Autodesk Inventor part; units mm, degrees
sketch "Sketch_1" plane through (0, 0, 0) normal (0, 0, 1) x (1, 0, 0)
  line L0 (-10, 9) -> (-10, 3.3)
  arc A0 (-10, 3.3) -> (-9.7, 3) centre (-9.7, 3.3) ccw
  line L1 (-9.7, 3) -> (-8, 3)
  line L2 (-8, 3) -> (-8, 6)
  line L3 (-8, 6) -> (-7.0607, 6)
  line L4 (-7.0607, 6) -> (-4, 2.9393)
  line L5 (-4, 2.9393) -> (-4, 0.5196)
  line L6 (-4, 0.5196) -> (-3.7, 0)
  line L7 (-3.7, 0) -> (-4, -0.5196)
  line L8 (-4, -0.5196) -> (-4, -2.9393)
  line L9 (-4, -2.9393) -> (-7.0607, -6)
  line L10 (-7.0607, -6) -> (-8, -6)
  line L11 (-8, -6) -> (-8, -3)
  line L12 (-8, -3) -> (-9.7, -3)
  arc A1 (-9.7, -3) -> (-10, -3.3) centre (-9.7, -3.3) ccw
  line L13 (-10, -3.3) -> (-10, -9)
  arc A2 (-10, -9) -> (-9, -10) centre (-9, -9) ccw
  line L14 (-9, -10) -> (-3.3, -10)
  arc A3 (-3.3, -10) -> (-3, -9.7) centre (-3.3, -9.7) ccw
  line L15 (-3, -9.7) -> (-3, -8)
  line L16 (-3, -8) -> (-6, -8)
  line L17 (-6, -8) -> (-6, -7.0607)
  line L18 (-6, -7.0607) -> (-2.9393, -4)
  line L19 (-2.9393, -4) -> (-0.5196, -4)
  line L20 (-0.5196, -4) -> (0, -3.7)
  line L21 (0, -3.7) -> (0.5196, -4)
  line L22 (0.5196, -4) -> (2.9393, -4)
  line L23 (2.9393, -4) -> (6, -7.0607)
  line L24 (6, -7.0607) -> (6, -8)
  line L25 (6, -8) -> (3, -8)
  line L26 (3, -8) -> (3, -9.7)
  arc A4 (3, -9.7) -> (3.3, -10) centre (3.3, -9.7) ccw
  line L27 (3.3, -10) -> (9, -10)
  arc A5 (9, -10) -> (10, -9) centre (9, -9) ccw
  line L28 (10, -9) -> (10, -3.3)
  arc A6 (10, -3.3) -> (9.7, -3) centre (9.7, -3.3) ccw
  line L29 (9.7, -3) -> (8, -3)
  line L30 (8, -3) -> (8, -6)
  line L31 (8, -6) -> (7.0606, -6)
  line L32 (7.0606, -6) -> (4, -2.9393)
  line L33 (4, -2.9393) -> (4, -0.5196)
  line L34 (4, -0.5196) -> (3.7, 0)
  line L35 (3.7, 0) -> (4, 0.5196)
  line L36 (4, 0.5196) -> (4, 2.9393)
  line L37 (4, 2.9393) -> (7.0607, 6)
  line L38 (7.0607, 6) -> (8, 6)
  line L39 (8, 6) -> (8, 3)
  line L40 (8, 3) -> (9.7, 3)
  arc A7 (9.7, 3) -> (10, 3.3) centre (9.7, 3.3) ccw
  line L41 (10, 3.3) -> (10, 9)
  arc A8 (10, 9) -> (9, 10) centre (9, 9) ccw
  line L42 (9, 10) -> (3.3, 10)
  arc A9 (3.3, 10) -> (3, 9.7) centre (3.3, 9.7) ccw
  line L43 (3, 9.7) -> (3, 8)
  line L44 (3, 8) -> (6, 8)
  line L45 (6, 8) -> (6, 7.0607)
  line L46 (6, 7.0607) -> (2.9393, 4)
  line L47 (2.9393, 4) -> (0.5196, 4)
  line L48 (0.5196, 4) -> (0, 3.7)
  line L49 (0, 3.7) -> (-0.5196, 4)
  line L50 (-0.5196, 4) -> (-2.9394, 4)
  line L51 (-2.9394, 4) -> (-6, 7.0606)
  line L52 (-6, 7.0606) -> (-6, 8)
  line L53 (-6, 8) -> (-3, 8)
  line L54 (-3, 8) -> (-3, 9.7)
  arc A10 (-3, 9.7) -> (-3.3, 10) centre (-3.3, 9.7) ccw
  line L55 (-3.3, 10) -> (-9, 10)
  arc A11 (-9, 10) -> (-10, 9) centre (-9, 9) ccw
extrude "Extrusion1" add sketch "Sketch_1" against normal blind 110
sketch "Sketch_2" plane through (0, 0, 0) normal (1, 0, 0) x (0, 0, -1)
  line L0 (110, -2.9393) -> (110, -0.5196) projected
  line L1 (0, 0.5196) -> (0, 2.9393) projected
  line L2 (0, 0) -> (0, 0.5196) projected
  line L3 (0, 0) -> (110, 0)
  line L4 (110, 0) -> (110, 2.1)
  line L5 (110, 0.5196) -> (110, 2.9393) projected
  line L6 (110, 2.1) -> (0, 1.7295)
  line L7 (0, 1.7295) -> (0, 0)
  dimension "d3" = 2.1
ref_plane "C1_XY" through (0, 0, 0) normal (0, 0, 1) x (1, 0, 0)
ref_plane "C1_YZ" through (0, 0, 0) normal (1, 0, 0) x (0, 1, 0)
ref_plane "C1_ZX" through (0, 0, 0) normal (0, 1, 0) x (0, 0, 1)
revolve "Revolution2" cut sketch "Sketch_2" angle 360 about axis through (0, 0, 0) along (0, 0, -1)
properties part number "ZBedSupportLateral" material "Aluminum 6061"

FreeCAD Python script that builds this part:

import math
import FreeCAD as App
import Part
import Sketcher
from FreeCAD import Vector
Q = App.Units.Quantity

doc = App.newDocument("Part")
params = doc.addObject("Spreadsheet::Sheet", "Params")
for row, (alias, value) in enumerate([
    ("sketch1_radius", "1 mm"),
    ("sketch1_radius2", "0.3 mm"),
    ("sketch1_width", "3 mm"),
    ("sketch1_width2", "1.7 mm"),
    ("sketch1_width3", "5.7 mm"),
    ("pad1_length", "110 mm"),
    ("sketch2_width", "2.1 mm"),
    ("sketch2_height", "110 mm"),
    ("groove_angle", "360 deg"),
], start=1):
    params.set(f"A{row}", alias)
    params.set(f"B{row}", "=" + value)
    params.setAlias(f"B{row}", alias)

body = doc.addObject("PartDesign::Body", "Body")

sketch1 = body.newObject("Sketcher::SketchObject", "Sketch")
sketch1.AttachmentSupport = (doc.getObject("XY_Plane"), [""])
sketch1.MapMode = "FlatFace"
sketch1.addGeometry([
    Part.ArcOfCircle(Part.Circle(Vector(-9, 9, 0), Vector(0, 0, 1), 1), math.radians(90), math.radians(180)),
    Part.LineSegment(Vector(-10, 9, 0), Vector(-10, 3.3, 0)),
    Part.ArcOfCircle(Part.Circle(Vector(-9.7, 3.3, 0), Vector(0, 0, 1), 0.3), math.radians(180), math.radians(270)),
    Part.LineSegment(Vector(-9.7, 3, 0), Vector(-8, 3, 0)),
    Part.LineSegment(Vector(-8, 3, 0), Vector(-8, 6, 0)),
    Part.LineSegment(Vector(-8, 6, 0), Vector(-7.06, 6, 0)),
    Part.LineSegment(Vector(-7.06, 6, 0), Vector(-4, 2.94, 0)),
    Part.LineSegment(Vector(-4, 2.94, 0), Vector(-4, 0.52, 0)),
    Part.LineSegment(Vector(-4, 0.52, 0), Vector(-3.7, 0, 0)),
    Part.LineSegment(Vector(-3.7, 0, 0), Vector(-4, -0.52, 0)),
    Part.LineSegment(Vector(-4, -0.52, 0), Vector(-4, -2.94, 0)),
    Part.LineSegment(Vector(-4, -2.94, 0), Vector(-7.06, -6, 0)),
    Part.LineSegment(Vector(-7.06, -6, 0), Vector(-8, -6, 0)),
    Part.LineSegment(Vector(-8, -6, 0), Vector(-8, -3, 0)),
    Part.LineSegment(Vector(-8, -3, 0), Vector(-9.7, -3, 0)),
    Part.ArcOfCircle(Part.Circle(Vector(-9.7, -3.3, 0), Vector(0, 0, 1), 0.3), math.radians(90), math.radians(180)),
    Part.LineSegment(Vector(-10, -3.3, 0), Vector(-10, -9, 0)),
    Part.ArcOfCircle(Part.Circle(Vector(-9, -9, 0), Vector(0, 0, 1), 1), math.radians(180), math.radians(270)),
    Part.LineSegment(Vector(-9, -10, 0), Vector(-3.3, -10, 0)),
    Part.ArcOfCircle(Part.Circle(Vector(-3.3, -9.7, 0), Vector(0, 0, 1), 0.3), math.radians(-90), math.radians(0)),
    Part.LineSegment(Vector(-3, -9.7, 0), Vector(-3, -8, 0)),
    Part.LineSegment(Vector(-3, -8, 0), Vector(-6, -8, 0)),
    Part.LineSegment(Vector(-6, -8, 0), Vector(-6, -7.06, 0)),
    Part.LineSegment(Vector(-6, -7.06, 0), Vector(-2.94, -4, 0)),
    Part.LineSegment(Vector(-2.94, -4, 0), Vector(-0.52, -4, 0)),
    Part.LineSegment(Vector(-0.52, -4, 0), Vector(0, -3.7, 0)),
    Part.LineSegment(Vector(0, -3.7, 0), Vector(0.52, -4, 0)),
    Part.LineSegment(Vector(0.52, -4, 0), Vector(2.94, -4, 0)),
    Part.LineSegment(Vector(2.94, -4, 0), Vector(6, -7.06, 0)),
    Part.LineSegment(Vector(6, -7.06, 0), Vector(6, -8, 0)),
    Part.LineSegment(Vector(6, -8, 0), Vector(3, -8, 0)),
    Part.LineSegment(Vector(3, -8, 0), Vector(3, -9.7, 0)),
    Part.ArcOfCircle(Part.Circle(Vector(3.3, -9.7, 0), Vector(0, 0, 1), 0.3), math.radians(180), math.radians(270)),
    Part.LineSegment(Vector(3.3, -10, 0), Vector(9, -10, 0)),
    Part.ArcOfCircle(Part.Circle(Vector(9, -9, 0), Vector(0, 0, 1), 1), math.radians(-90), math.radians(0)),
    Part.LineSegment(Vector(10, -9, 0), Vector(10, -3.3, 0)),
    Part.ArcOfCircle(Part.Circle(Vector(9.7, -3.3, 0), Vector(0, 0, 1), 0.3), math.radians(0), math.radians(90)),
    Part.LineSegment(Vector(9.7, -3, 0), Vector(8, -3, 0)),
    Part.LineSegment(Vector(8, -3, 0), Vector(8, -6, 0)),
    Part.LineSegment(Vector(8, -6, 0), Vector(7.06, -6, 0)),
    Part.LineSegment(Vector(7.06, -6, 0), Vector(4, -2.94, 0)),
    Part.LineSegment(Vector(4, -2.94, 0), Vector(4, -0.52, 0)),
    Part.LineSegment(Vector(4, -0.52, 0), Vector(3.7, 0, 0)),
    Part.LineSegment(Vector(3.7, 0, 0), Vector(4, 0.52, 0)),
    Part.LineSegment(Vector(4, 0.52, 0), Vector(4, 2.94, 0)),
    Part.LineSegment(Vector(4, 2.94, 0), Vector(7.06, 6, 0)),
    Part.LineSegment(Vector(7.06, 6, 0), Vector(8, 6, 0)),
    Part.LineSegment(Vector(8, 6, 0), Vector(8, 3, 0)),
    Part.LineSegment(Vector(8, 3, 0), Vector(9.7, 3, 0)),
    Part.ArcOfCircle(Part.Circle(Vector(9.7, 3.3, 0), Vector(0, 0, 1), 0.3), math.radians(-90), math.radians(0)),
    Part.LineSegment(Vector(10, 3.3, 0), Vector(10, 9, 0)),
    Part.ArcOfCircle(Part.Circle(Vector(9, 9, 0), Vector(0, 0, 1), 1), math.radians(0), math.radians(90)),
    Part.LineSegment(Vector(9, 10, 0), Vector(3.3, 10, 0)),
    Part.ArcOfCircle(Part.Circle(Vector(3.3, 9.7, 0), Vector(0, 0, 1), 0.3), math.radians(90), math.radians(180)),
    Part.LineSegment(Vector(3, 9.7, 0), Vector(3, 8, 0)),
    Part.LineSegment(Vector(3, 8, 0), Vector(6, 8, 0)),
    Part.LineSegment(Vector(6, 8, 0), Vector(6, 7.06, 0)),
    Part.LineSegment(Vector(6, 7.06, 0), Vector(2.94, 4, 0)),
    Part.LineSegment(Vector(2.94, 4, 0), Vector(0.52, 4, 0)),
    Part.LineSegment(Vector(0.52, 4, 0), Vector(0, 3.7, 0)),
    Part.LineSegment(Vector(0, 3.7, 0), Vector(-0.52, 4, 0)),
    Part.LineSegment(Vector(-0.52, 4, 0), Vector(-2.94, 4, 0)),
    Part.LineSegment(Vector(-2.94, 4, 0), Vector(-6, 7.06, 0)),
    Part.LineSegment(Vector(-6, 7.06, 0), Vector(-6, 8, 0)),
    Part.LineSegment(Vector(-6, 8, 0), Vector(-3, 8, 0)),
    Part.LineSegment(Vector(-3, 8, 0), Vector(-3, 9.7, 0)),
    Part.ArcOfCircle(Part.Circle(Vector(-3.3, 9.7, 0), Vector(0, 0, 1), 0.3), math.radians(0), math.radians(90)),
    Part.LineSegment(Vector(-3.3, 10, 0), Vector(-9, 10, 0)),
], False)
sketch1.addConstraint([
    Sketcher.Constraint("Tangent", 0, 2, 1, 1),
    Sketcher.Constraint("Tangent", 1, 2, 2, 1),
    Sketcher.Constraint("Tangent", 2, 2, 3, 1),
    Sketcher.Constraint("Coincident", 3, 2, 4, 1),
    Sketcher.Constraint("Coincident", 4, 2, 5, 1),
    Sketcher.Constraint("Coincident", 5, 2, 6, 1),
    Sketcher.Constraint("Coincident", 6, 2, 7, 1),
    Sketcher.Constraint("Coincident", 7, 2, 8, 1),
    Sketcher.Constraint("Coincident", 8, 2, 9, 1),
    Sketcher.Constraint("Coincident", 9, 2, 10, 1),
    Sketcher.Constraint("Coincident", 10, 2, 11, 1),
    Sketcher.Constraint("Coincident", 11, 2, 12, 1),
    Sketcher.Constraint("Coincident", 12, 2, 13, 1),
    Sketcher.Constraint("Coincident", 13, 2, 14, 1),
    Sketcher.Constraint("Tangent", 14, 2, 15, 1),
    Sketcher.Constraint("Tangent", 15, 2, 16, 1),
    Sketcher.Constraint("Tangent", 16, 2, 17, 1),
    Sketcher.Constraint("Tangent", 17, 2, 18, 1),
    Sketcher.Constraint("Tangent", 18, 2, 19, 1),
    Sketcher.Constraint("Tangent", 19, 2, 20, 1),
    Sketcher.Constraint("Coincident", 20, 2, 21, 1),
    Sketcher.Constraint("Coincident", 21, 2, 22, 1),
    Sketcher.Constraint("Coincident", 22, 2, 23, 1),
    Sketcher.Constraint("Coincident", 23, 2, 24, 1),
    Sketcher.Constraint("Coincident", 24, 2, 25, 1),
    Sketcher.Constraint("Coincident", 25, 2, 26, 1),
    Sketcher.Constraint("Coincident", 26, 2, 27, 1),
    Sketcher.Constraint("Coincident", 27, 2, 28, 1),
    Sketcher.Constraint("Coincident", 28, 2, 29, 1),
    Sketcher.Constraint("Coincident", 29, 2, 30, 1),
    Sketcher.Constraint("Coincident", 30, 2, 31, 1),
    Sketcher.Constraint("Tangent", 31, 2, 32, 1),
    Sketcher.Constraint("Tangent", 32, 2, 33, 1),
    Sketcher.Constraint("Tangent", 33, 2, 34, 1),
    Sketcher.Constraint("Tangent", 34, 2, 35, 1),
    Sketcher.Constraint("Tangent", 35, 2, 36, 1),
    Sketcher.Constraint("Tangent", 36, 2, 37, 1),
    Sketcher.Constraint("Coincident", 37, 2, 38, 1),
    Sketcher.Constraint("Coincident", 38, 2, 39, 1),
    Sketcher.Constraint("Coincident", 39, 2, 40, 1),
    Sketcher.Constraint("Coincident", 40, 2, 41, 1),
    Sketcher.Constraint("Coincident", 41, 2, 42, 1),
    Sketcher.Constraint("Coincident", 42, 2, 43, 1),
    Sketcher.Constraint("Coincident", 43, 2, 44, 1),
    Sketcher.Constraint("Coincident", 44, 2, 45, 1),
    Sketcher.Constraint("Coincident", 45, 2, 46, 1),
    Sketcher.Constraint("Coincident", 46, 2, 47, 1),
    Sketcher.Constraint("Coincident", 47, 2, 48, 1),
    Sketcher.Constraint("Tangent", 48, 2, 49, 1),
    Sketcher.Constraint("Tangent", 49, 2, 50, 1),
    Sketcher.Constraint("Tangent", 50, 2, 51, 1),
    Sketcher.Constraint("Tangent", 51, 2, 52, 1),
    Sketcher.Constraint("Tangent", 52, 2, 53, 1),
    Sketcher.Constraint("Tangent", 53, 2, 54, 1),
    Sketcher.Constraint("Coincident", 54, 2, 55, 1),
    Sketcher.Constraint("Coincident", 55, 2, 56, 1),
    Sketcher.Constraint("Coincident", 56, 2, 57, 1),
    Sketcher.Constraint("Coincident", 57, 2, 58, 1),
    Sketcher.Constraint("Coincident", 58, 2, 59, 1),
    Sketcher.Constraint("Coincident", 59, 2, 60, 1),
    Sketcher.Constraint("Coincident", 60, 2, 61, 1),
    Sketcher.Constraint("Coincident", 61, 2, 62, 1),
    Sketcher.Constraint("Coincident", 62, 2, 63, 1),
    Sketcher.Constraint("Coincident", 63, 2, 64, 1),
    Sketcher.Constraint("Coincident", 64, 2, 65, 1),
    Sketcher.Constraint("Tangent", 65, 2, 66, 1),
    Sketcher.Constraint("Tangent", 66, 2, 67, 1),
    Sketcher.Constraint("Tangent", 67, 2, 0, 1),
    Sketcher.Constraint("Vertical", 1),
    Sketcher.Constraint("Horizontal", 3),
    Sketcher.Constraint("Vertical", 4),
    Sketcher.Constraint("Horizontal", 5),
    Sketcher.Constraint("Vertical", 7),
    Sketcher.Constraint("Vertical", 10),
    Sketcher.Constraint("Horizontal", 12),
    Sketcher.Constraint("Vertical", 13),
    Sketcher.Constraint("Horizontal", 14),
    Sketcher.Constraint("Vertical", 16),
    Sketcher.Constraint("Horizontal", 18),
    Sketcher.Constraint("Vertical", 20),
    Sketcher.Constraint("Horizontal", 21),
    Sketcher.Constraint("Vertical", 22),
    Sketcher.Constraint("Horizontal", 24),
    Sketcher.Constraint("Horizontal", 27),
    Sketcher.Constraint("Vertical", 29),
    Sketcher.Constraint("Horizontal", 30),
    Sketcher.Constraint("Vertical", 31),
    Sketcher.Constraint("Horizontal", 33),
    Sketcher.Constraint("Vertical", 35),
    Sketcher.Constraint("Horizontal", 37),
    Sketcher.Constraint("Vertical", 38),
    Sketcher.Constraint("Horizontal", 39),
    Sketcher.Constraint("Vertical", 41),
    Sketcher.Constraint("Vertical", 44),
    Sketcher.Constraint("Horizontal", 46),
    Sketcher.Constraint("Vertical", 47),
    Sketcher.Constraint("Horizontal", 48),
    Sketcher.Constraint("Vertical", 50),
    Sketcher.Constraint("Horizontal", 52),
    Sketcher.Constraint("Vertical", 54),
    Sketcher.Constraint("Horizontal", 55),
    Sketcher.Constraint("Vertical", 56),
    Sketcher.Constraint("Horizontal", 58),
    Sketcher.Constraint("Horizontal", 61),
    Sketcher.Constraint("Vertical", 63),
    Sketcher.Constraint("Horizontal", 64),
    Sketcher.Constraint("Vertical", 65),
    Sketcher.Constraint("Horizontal", 67),
    Sketcher.Constraint("Equal", 2, 15),
    Sketcher.Constraint("Equal", 0, 17),
    Sketcher.Constraint("Equal", 15, 19),
    Sketcher.Constraint("Equal", 19, 32),
    Sketcher.Constraint("Equal", 17, 34),
    Sketcher.Constraint("Equal", 32, 36),
    Sketcher.Constraint("Equal", 36, 49),
    Sketcher.Constraint("Equal", 34, 51),
    Sketcher.Constraint("Equal", 49, 53),
    Sketcher.Constraint("Equal", 53, 66),
    Sketcher.Constraint("Symmetric", 0, 3, 34, 3, -1, 1),
    Sketcher.Constraint("Symmetric", 15, 3, 49, 3, -1, 1),
    Sketcher.Constraint("Symmetric", 19, 3, 53, 3, -1, 1),
    Sketcher.Constraint("Symmetric", 3, 2, 37, 2, -1, 1),
    Sketcher.Constraint("Symmetric", 5, 2, 39, 2, -1, 1),
    Sketcher.Constraint("Symmetric", 6, 2, 40, 2, -1, 1),
    Sketcher.Constraint("Symmetric", 8, 2, 42, 2, -1, 1),
    Sketcher.Constraint("Symmetric", 9, 2, 43, 2, -1, 1),
    Sketcher.Constraint("Symmetric", 11, 2, 45, 2, -1, 1),
    Sketcher.Constraint("Symmetric", 21, 2, 55, 2, -1, 1),
    Sketcher.Constraint("Symmetric", 23, 2, 57, 2, -1, 1),
    Sketcher.Constraint("Symmetric", 25, 2, 59, 2, -1, 1),
    Sketcher.Constraint("Symmetric", 26, 2, 60, 2, -1, 1),
    Sketcher.Constraint("Symmetric", 28, 2, 62, 2, -1, 1),
    Sketcher.Constraint("Symmetric", 30, 2, 64, 2, -1, 1),
    Sketcher.Constraint("Symmetric", 19, 3, 32, 3, -2),
    Sketcher.Constraint("Symmetric", 15, 3, 36, 3, -2),
    Sketcher.Constraint("Symmetric", 24, 2, 26, 2, -2),
    Sketcher.Constraint("Symmetric", 22, 2, 28, 2, -2),
    Sketcher.Constraint("Symmetric", 12, 2, 38, 2, -2),
    Sketcher.Constraint("Symmetric", 10, 2, 40, 2, -2),
    Sketcher.Constraint("PointOnObject", 8, 2, -1),
    Sketcher.Constraint("PointOnObject", 25, 2, -2),
    Sketcher.Constraint("Perpendicular", 6, 11),
    Sketcher.Constraint("Parallel", 11, 23),
    Sketcher.Constraint("Perpendicular", 8, 25),
    Sketcher.Constraint("Perpendicular", 9, 26),
    Sketcher.Constraint("Perpendicular", 23, 28),
    Sketcher.Constraint("Perpendicular", 25, 42),
    Sketcher.Constraint("Perpendicular", 40, 45),
    Sketcher.Constraint("Parallel", 45, 57),
    Sketcher.Constraint("Perpendicular", 42, 59),
    Sketcher.Constraint("Perpendicular", 57, 62),
    Sketcher.Constraint("Horizontal", 21, 2, 29, 2),
    Sketcher.Constraint("Vertical", 5, 2, 11, 2),
    Sketcher.Constraint("Vertical", 38, 2, 46, 2),
    Sketcher.Constraint("Equal", 67, 1),
    Sketcher.Constraint("Equal", 64, 4),
    Sketcher.Constraint("Equal", 61, 7),
    Sketcher.Constraint("Equal", 48, 20),
    Sketcher.Constraint("Equal", 46, 22),
    Sketcher.Constraint("Equal", 11, 23),
    Sketcher.Constraint("Equal", 9, 25),
    Sketcher.Constraint("Radius", 0, Q("1 mm")),
    Sketcher.Constraint("Radius", 2, Q("0.3 mm")),
    Sketcher.Constraint("DistanceX", 21, 2, 21, 1, Q("3 mm")),
    Sketcher.Constraint("Angle", 8, Q("-59.9993 deg")),
    Sketcher.Constraint("DistanceX", 3, 1, 3, 2, Q("1.7 mm")),
    Sketcher.Constraint("DistanceX", 18, 1, 18, 2, Q("5.7 mm")),
    Sketcher.Constraint("DistanceX", 0, 3, -1, 1, Q("9 mm")),
    Sketcher.Constraint("DistanceX", 6, 2, -1, 1, Q("4 mm")),
    Sketcher.Constraint("Distance", 8, Q("0.6 mm")),
    Sketcher.Constraint("DistanceX", 5, 1, 5, 2, Q("0.9393 mm")),
])
sketch1.setExpression("Constraints[161]", "Params.sketch1_radius")
sketch1.setExpression("Constraints[162]", "Params.sketch1_radius2")
sketch1.setExpression("Constraints[163]", "Params.sketch1_width")
sketch1.setExpression("Constraints[165]", "Params.sketch1_width2")
sketch1.setExpression("Constraints[166]", "Params.sketch1_width3")
pad1 = body.newObject("PartDesign::Pad", "Pad")
pad1.Profile = sketch1
pad1.setExpression("Length", "Params.pad1_length")
pad1.Reversed = True

sketch2 = body.newObject("Sketcher::SketchObject", "Sketch001")
sketch2.AttachmentSupport = (doc.getObject("YZ_Plane"), [""])
sketch2.MapMode = "FlatFace"
sketch2.addGeometry([
    Part.LineSegment(Vector(1.7, 0, 0), Vector(0, 0, 0)),
    Part.LineSegment(Vector(0, 0, 0), Vector(0, -110, 0)),
    Part.LineSegment(Vector(0, -110, 0), Vector(2.1, -110, 0)),
    Part.LineSegment(Vector(2.1, -110, 0), Vector(1.7, 0, 0)),
], False)
sketch2.addConstraint([
    Sketcher.Constraint("Coincident", 0, 2, 1, 1),
    Sketcher.Constraint("Coincident", 1, 2, 2, 1),
    Sketcher.Constraint("Coincident", 2, 2, 3, 1),
    Sketcher.Constraint("Coincident", 3, 2, 0, 1),
    Sketcher.Constraint("Horizontal", 0),
    Sketcher.Constraint("Vertical", 1),
    Sketcher.Constraint("Horizontal", 2),
    Sketcher.Constraint("Coincident", 0, 2, -1, 1),
    Sketcher.Constraint("DistanceX", 2, 1, 2, 2, Q("2.1 mm")),
    Sketcher.Constraint("DistanceY", 1, 2, 1, 1, Q("110 mm")),
    Sketcher.Constraint("DistanceX", 0, 2, 0, 1, Q("1.7295 mm")),
])
sketch2.setExpression("Constraints[8]", "Params.sketch2_width")
sketch2.setExpression("Constraints[9]", "Params.sketch2_height")
groove = body.newObject("PartDesign::Groove", "Groove")
groove.Profile = sketch2
groove.ReferenceAxis = (sketch2, ["V_Axis"])
groove.setExpression("Angle", "Params.groove_angle")

doc.recompute()
